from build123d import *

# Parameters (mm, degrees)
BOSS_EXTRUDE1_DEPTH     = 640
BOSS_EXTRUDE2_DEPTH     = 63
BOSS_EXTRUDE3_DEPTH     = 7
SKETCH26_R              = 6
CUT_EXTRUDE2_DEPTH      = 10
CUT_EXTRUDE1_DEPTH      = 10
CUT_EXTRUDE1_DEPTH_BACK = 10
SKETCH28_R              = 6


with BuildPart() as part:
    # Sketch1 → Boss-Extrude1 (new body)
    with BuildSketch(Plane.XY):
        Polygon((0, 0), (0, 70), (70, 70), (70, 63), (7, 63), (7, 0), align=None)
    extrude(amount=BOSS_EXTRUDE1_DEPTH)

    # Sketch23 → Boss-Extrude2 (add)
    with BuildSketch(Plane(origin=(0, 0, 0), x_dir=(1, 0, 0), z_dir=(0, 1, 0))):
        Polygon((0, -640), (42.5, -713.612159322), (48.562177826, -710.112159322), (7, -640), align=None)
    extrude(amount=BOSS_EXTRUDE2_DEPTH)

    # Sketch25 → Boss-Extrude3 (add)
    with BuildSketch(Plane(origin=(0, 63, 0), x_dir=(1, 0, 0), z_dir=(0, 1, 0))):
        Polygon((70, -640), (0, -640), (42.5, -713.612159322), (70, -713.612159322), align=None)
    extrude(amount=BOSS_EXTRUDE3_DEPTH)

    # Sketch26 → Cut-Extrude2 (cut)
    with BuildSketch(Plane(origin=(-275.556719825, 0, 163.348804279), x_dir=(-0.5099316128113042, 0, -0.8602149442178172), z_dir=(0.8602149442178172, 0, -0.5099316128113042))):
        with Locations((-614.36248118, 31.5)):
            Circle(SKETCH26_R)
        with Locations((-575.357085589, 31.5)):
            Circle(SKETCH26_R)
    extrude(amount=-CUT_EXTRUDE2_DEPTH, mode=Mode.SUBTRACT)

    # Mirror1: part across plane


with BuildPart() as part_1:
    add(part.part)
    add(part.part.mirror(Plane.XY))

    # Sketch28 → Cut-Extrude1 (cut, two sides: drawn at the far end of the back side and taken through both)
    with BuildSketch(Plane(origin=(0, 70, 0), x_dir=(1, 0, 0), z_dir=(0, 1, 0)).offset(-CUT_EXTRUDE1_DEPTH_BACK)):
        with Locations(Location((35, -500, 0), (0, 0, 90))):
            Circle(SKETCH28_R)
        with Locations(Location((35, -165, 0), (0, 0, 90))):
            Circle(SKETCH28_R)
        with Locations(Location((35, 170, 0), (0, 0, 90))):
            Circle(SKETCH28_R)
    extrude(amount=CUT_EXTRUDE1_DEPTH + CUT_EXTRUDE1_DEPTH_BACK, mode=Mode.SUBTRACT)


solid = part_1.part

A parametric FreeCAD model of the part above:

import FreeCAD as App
import Part
import Sketcher
from FreeCAD import Vector
Q = App.Units.Quantity


def add_polygon(sketch, points):
    """Adds a closed chain of lines whose ends are joined by coincident constraints."""
    first, n = sketch.GeometryCount, len(points)
    for a, b in zip(points, points[1:] + points[:1]):
        sketch.addGeometry(Part.LineSegment(App.Vector(*a, 0), App.Vector(*b, 0)), False)
    for i in range(n):
        sketch.addConstraint(Sketcher.Constraint("Coincident", first + i, 2, first + (i + 1) % n, 1))

doc = App.newDocument("Part")
body = doc.addObject("PartDesign::Body", "Body")

sketch1 = doc.addObject("Sketcher::SketchObject", "Sketch")
body.addObject(sketch1)
sketch1.AttachmentSupport = (doc.XY_Plane, [""])
sketch1.MapMode = "FlatFace"
add_polygon(sketch1, [(0, 70), (0, 0), (7, 0), (7, 63), (70, 63), (70, 70)])
sketch1.addConstraint(Sketcher.Constraint("Vertical", 0))
sketch1.addConstraint(Sketcher.Constraint("Horizontal", 1))
sketch1.addConstraint(Sketcher.Constraint("Vertical", 2))
sketch1.addConstraint(Sketcher.Constraint("Horizontal", 3))
sketch1.addConstraint(Sketcher.Constraint("Vertical", 4))
sketch1.addConstraint(Sketcher.Constraint("Horizontal", 5))
sketch1.addConstraint(Sketcher.Constraint("Coincident", 0, 2, -1, 1))
sketch1.addConstraint(Sketcher.Constraint("Equal", 5, 0))
sketch1.addConstraint(Sketcher.Constraint("Equal", 3, 2))
sketch1.addConstraint(Sketcher.Constraint("DistanceX", 1, 1, 1, 2, Q("7 mm")))
sketch1.addConstraint(Sketcher.Constraint("DistanceX", 3, 1, 3, 2, Q("63 mm")))
pad1 = doc.addObject("PartDesign::Pad", "Pad")
body.addObject(pad1)
pad1.Profile = sketch1
pad1.Length = 640

sketch2 = doc.addObject("Sketcher::SketchObject", "Sketch001")
body.addObject(sketch2)
sketch2.AttachmentSupport = (doc.XZ_Plane, [""])
sketch2.MapMode = "FlatFace"
add_polygon(sketch2, [(0, 640), (42, 714), (49, 710), (7, 640)])
sketch2.addConstraint(Sketcher.Constraint("Horizontal", 3))
sketch2.addConstraint(Sketcher.Constraint("PointOnObject", 3, 2, -2))
sketch2.addConstraint(Sketcher.Constraint("Perpendicular", 0, 1))
sketch2.addConstraint(Sketcher.Constraint("DistanceX", 3, 2, 3, 1, Q("7 mm")))
sketch2.addConstraint(Sketcher.Constraint("Angle", 0, Q("60 deg")))
sketch2.addConstraint(Sketcher.Constraint("Distance", 0, Q("85 mm")))
sketch2.addConstraint(Sketcher.Constraint("Distance", 1, Q("7 mm")))
sketch2.addConstraint(Sketcher.Constraint("DistanceY", -1, 1, 2, 2, Q("640 mm")))
pad2 = doc.addObject("PartDesign::Pad", "Pad001")
body.addObject(pad2)
pad2.Profile = sketch2
pad2.Length = 63
pad2.Reversed = True

sketch3 = doc.addObject("Sketcher::SketchObject", "Sketch002")
body.addObject(sketch3)
sketch3.AttachmentSupport = (doc.XZ_Plane, [""])
sketch3.MapMode = "FlatFace"
sketch3.AttachmentOffset = App.Placement(Vector(0, 0, -63), App.Rotation())
add_polygon(sketch3, [(70, 640), (0, 640), (42, 714), (70, 714)])
sketch3.addConstraint(Sketcher.Constraint("Horizontal", 0))
sketch3.addConstraint(Sketcher.Constraint("Horizontal", 2))
sketch3.addConstraint(Sketcher.Constraint("Vertical", 3))
sketch3.addConstraint(Sketcher.Constraint("PointOnObject", 0, 2, -2))
sketch3.addConstraint(Sketcher.Constraint("DistanceX", 0, 2, 0, 1, Q("70 mm")))
sketch3.addConstraint(Sketcher.Constraint("Angle", 1, Q("60 deg")))
sketch3.addConstraint(Sketcher.Constraint("Distance", 1, Q("85 mm")))
sketch3.addConstraint(Sketcher.Constraint("DistanceY", -1, 1, 0, 2, Q("640 mm")))
pad3 = doc.addObject("PartDesign::Pad", "Pad002")
body.addObject(pad3)
pad3.Profile = sketch3
pad3.Length = 7
pad3.Reversed = True

sketch4 = doc.addObject("Sketcher::SketchObject", "Sketch003")
body.addObject(sketch4)
sketch4.Placement = App.Placement(Vector(-275.55672, 0, 163.348804), App.Rotation(Vector(-0.509931613, 0, -0.860214944), Vector(0, 1, 0), Vector(0.860214944, 0, -0.509931613), "ZXY"))
sketch4.addGeometry(Part.Circle(Vector(-614, 31, 0), Vector(0, 0, 1), 6), False)
sketch4.addGeometry(Part.Circle(Vector(-575, 31, 0), Vector(0, 0, 1), 6), False)
sketch4.addConstraint(Sketcher.Constraint("Equal", 0, 1))
sketch4.addConstraint(Sketcher.Constraint("Horizontal", 0, 3, 1, 3))
sketch4.addConstraint(Sketcher.Constraint("Diameter", 0, Q("12 mm")))
sketch4.addConstraint(Sketcher.Constraint("DistanceY", -1, 1, 0, 3, Q("31.5 mm")))
sketch4.addConstraint(Sketcher.Constraint("DistanceX", 0, 3, -1, 1, Q("614.362481 mm")))
sketch4.addConstraint(Sketcher.Constraint("DistanceX", 1, 3, -1, 1, Q("575.357085 mm")))
pocket1 = doc.addObject("PartDesign::Pocket", "Pocket")
body.addObject(pocket1)
pocket1.Profile = sketch4
pocket1.Length = 10
body2 = doc.addObject("PartDesign::Body", "Body001")
doc.recompute()

body2.BaseFeature = body
doc.recompute()

mirroring = doc.addObject("Part::Mirroring", "Mirroring")
mirroring.Source = body
mirroring.Base = Vector(0, 0, 0)
mirroring.Normal = Vector(0, 0, 1)
body3 = doc.addObject("PartDesign::Body", "Body002")
body3.BaseFeature = mirroring
boolean = doc.addObject("PartDesign::Boolean", "Boolean")
body2.addObject(boolean)
boolean.Type = "Fuse"
boolean.addObjects([body3])
doc.recompute()

sketch5 = doc.addObject("Sketcher::SketchObject", "Sketch004")
body2.addObject(sketch5)
sketch5.AttachmentSupport = (doc.getObject("XZ_Plane001"), [""])
sketch5.MapMode = "FlatFace"
sketch5.AttachmentOffset = App.Placement(Vector(0, 0, -70), App.Rotation())
sketch5.addGeometry(Part.Circle(Vector(35, 500, 0), Vector(0, 0, 1), 6), False)
sketch5.addGeometry(Part.Circle(Vector(35, 165, 0), Vector(0, 0, 1), 6), False)
sketch5.addGeometry(Part.Circle(Vector(35, -170, 0), Vector(0, 0, 1), 6), False)
sketch5.addConstraint(Sketcher.Constraint("Equal", 0, 1))
sketch5.addConstraint(Sketcher.Constraint("Equal", 1, 2))
sketch5.addConstraint(Sketcher.Constraint("Vertical", 0, 3, 1, 3))
sketch5.addConstraint(Sketcher.Constraint("Vertical", 1, 3, 2, 3))
sketch5.addConstraint(Sketcher.Constraint("Diameter", 0, Q("12 mm")))
sketch5.addConstraint(Sketcher.Constraint("DistanceX", -1, 1, 0, 3, Q("35 mm")))
sketch5.addConstraint(Sketcher.Constraint("DistanceY", -1, 1, 0, 3, Q("500 mm")))
sketch5.addConstraint(Sketcher.Constraint("DistanceY", -1, 1, 1, 3, Q("165 mm")))
sketch5.addConstraint(Sketcher.Constraint("DistanceY", 2, 3, -1, 1, Q("170 mm")))
pocket2 = doc.addObject("PartDesign::Pocket", "Pocket001")
body2.addObject(pocket2)
pocket2.Profile = sketch5
pocket2.Type = "ThroughAll"
pocket2.Midplane = True
mirroring.Visibility = False

doc.recompute()
